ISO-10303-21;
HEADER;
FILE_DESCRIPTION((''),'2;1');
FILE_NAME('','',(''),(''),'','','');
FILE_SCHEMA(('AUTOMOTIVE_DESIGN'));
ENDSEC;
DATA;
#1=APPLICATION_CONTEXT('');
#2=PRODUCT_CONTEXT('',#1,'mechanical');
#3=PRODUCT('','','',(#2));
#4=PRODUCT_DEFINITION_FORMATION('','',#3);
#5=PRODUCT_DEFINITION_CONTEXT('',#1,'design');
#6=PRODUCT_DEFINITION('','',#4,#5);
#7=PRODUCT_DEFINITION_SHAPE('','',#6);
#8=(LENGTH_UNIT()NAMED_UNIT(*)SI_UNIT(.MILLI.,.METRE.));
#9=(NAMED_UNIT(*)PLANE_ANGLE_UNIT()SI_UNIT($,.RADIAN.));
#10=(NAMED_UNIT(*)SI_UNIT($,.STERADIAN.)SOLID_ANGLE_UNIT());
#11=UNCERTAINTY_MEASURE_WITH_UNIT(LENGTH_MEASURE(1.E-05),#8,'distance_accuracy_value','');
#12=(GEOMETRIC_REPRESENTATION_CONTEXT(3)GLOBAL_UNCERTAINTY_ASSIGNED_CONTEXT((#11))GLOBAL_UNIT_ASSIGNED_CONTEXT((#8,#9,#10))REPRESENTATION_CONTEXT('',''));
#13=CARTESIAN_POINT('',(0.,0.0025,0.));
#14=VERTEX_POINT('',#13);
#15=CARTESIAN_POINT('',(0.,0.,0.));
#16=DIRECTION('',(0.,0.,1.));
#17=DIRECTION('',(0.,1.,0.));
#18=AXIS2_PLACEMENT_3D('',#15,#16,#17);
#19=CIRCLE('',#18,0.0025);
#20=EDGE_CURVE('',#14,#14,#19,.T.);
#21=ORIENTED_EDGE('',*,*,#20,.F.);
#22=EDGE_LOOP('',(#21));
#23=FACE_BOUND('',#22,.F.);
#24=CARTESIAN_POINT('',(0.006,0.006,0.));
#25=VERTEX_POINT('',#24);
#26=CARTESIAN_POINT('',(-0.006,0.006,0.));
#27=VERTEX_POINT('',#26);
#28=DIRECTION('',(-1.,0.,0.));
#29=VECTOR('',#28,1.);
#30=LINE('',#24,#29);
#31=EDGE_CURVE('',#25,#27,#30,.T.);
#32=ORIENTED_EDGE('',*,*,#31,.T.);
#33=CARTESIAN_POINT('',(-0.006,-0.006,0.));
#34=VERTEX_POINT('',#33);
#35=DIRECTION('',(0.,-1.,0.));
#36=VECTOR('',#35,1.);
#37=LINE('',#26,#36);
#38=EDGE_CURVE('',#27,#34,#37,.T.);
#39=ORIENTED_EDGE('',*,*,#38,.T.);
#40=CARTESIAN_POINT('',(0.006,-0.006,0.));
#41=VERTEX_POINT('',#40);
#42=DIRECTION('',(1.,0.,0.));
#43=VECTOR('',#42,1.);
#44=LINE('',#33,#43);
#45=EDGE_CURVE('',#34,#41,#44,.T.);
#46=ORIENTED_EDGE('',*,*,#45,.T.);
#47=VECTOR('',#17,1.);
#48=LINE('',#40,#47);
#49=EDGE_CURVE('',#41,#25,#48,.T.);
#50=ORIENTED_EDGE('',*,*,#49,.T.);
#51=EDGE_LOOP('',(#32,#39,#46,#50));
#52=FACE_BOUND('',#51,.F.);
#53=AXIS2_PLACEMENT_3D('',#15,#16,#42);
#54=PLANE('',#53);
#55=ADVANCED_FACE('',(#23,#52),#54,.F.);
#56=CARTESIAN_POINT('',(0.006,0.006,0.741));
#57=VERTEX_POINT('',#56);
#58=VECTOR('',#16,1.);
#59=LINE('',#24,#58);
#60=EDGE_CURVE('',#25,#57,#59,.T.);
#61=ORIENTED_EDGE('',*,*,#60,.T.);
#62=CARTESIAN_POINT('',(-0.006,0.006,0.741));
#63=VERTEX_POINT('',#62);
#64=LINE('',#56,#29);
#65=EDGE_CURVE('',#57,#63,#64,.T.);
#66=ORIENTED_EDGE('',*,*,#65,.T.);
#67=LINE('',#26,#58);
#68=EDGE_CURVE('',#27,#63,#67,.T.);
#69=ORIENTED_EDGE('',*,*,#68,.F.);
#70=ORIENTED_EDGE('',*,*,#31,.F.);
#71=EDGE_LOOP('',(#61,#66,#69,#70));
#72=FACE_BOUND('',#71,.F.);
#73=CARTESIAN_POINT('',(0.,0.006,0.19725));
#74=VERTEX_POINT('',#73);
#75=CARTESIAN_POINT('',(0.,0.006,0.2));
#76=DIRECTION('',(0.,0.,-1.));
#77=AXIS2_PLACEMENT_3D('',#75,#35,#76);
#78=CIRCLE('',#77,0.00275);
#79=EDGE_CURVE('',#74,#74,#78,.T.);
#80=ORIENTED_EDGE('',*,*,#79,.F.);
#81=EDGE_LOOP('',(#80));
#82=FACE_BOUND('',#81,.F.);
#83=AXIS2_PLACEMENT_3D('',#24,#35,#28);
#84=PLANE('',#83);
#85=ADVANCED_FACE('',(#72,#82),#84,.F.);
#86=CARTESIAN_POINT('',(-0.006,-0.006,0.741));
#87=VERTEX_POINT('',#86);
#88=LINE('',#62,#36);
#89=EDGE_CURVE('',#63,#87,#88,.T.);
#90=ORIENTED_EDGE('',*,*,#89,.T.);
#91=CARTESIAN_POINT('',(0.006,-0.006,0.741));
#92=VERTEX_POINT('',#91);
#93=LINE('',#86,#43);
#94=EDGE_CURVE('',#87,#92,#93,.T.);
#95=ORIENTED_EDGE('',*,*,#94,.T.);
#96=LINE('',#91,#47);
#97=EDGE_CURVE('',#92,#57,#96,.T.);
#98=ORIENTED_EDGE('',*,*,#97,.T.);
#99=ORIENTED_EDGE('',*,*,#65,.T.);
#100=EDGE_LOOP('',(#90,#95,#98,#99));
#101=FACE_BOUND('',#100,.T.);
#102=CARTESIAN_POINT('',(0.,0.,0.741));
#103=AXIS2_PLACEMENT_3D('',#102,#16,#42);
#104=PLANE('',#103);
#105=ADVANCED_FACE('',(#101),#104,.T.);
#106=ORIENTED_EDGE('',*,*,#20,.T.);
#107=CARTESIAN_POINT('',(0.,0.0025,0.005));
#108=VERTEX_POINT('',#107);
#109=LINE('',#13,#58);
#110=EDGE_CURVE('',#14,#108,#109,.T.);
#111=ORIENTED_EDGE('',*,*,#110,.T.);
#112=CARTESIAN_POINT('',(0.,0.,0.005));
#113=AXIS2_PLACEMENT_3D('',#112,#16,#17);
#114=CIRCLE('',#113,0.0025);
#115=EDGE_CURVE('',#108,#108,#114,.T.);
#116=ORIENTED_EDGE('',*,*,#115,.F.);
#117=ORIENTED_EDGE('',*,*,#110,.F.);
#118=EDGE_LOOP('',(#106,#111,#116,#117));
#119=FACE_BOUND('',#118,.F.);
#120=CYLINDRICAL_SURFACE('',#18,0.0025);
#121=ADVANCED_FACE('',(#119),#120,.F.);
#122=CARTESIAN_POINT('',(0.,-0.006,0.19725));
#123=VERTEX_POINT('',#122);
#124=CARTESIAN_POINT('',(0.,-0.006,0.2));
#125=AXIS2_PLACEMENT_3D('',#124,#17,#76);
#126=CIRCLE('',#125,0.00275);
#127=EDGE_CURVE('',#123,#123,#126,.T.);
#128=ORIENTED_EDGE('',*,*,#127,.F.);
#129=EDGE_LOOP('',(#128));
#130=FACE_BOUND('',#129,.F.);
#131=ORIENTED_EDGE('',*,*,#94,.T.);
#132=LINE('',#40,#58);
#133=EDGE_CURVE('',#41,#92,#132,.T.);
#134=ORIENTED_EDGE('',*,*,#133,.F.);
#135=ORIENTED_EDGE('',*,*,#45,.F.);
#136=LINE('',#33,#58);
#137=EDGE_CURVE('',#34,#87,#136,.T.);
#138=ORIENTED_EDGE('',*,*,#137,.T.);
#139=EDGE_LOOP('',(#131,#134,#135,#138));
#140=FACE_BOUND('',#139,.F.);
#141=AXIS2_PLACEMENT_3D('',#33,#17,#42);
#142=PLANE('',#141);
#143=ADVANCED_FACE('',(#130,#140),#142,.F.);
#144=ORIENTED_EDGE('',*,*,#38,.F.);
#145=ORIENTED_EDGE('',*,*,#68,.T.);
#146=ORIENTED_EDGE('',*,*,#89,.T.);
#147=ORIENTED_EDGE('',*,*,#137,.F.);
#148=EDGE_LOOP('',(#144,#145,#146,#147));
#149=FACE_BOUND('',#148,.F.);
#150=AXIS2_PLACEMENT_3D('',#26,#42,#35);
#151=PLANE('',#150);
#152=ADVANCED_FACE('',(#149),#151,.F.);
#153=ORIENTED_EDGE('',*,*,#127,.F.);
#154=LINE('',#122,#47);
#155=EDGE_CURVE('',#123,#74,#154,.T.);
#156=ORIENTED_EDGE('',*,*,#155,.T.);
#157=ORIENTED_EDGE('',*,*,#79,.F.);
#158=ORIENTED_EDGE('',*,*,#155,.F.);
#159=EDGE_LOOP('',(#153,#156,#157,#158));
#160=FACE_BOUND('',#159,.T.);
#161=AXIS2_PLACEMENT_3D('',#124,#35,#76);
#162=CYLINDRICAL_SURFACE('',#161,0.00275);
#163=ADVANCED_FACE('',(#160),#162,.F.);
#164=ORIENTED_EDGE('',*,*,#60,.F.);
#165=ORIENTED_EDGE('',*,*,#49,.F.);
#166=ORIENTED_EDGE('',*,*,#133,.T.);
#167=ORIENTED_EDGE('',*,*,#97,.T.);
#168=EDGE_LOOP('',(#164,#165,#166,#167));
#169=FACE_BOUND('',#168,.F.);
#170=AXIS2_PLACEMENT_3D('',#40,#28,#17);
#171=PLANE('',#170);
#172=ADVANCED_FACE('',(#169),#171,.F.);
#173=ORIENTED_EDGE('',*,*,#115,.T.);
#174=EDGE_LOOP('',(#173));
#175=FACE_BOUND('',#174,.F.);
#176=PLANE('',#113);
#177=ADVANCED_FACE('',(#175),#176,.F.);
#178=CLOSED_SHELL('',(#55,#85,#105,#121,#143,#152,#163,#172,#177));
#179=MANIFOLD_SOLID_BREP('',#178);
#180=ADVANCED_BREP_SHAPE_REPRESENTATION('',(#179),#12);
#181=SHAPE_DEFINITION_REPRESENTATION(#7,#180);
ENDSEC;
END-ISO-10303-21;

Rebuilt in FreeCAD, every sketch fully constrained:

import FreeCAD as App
import Part
import Sketcher
Q = App.Units.Quantity


def add_polygon(sketch, points):
    """Adds a closed chain of lines whose ends are joined by coincident constraints."""
    first, n = sketch.GeometryCount, len(points)
    for a, b in zip(points, points[1:] + points[:1]):
        sketch.addGeometry(Part.LineSegment(App.Vector(*a, 0), App.Vector(*b, 0)), False)
    for i in range(n):
        sketch.addConstraint(Sketcher.Constraint("Coincident", first + i, 2, first + (i + 1) % n, 1))

doc = App.newDocument("Part")
body = doc.addObject("PartDesign::Body", "Body")

# Sketch on XY plane
sketch1 = body.newObject("Sketcher::SketchObject", "Sketch")
sketch1.AttachmentSupport = (doc.getObject("XY_Plane"), [""])
sketch1.MapMode = "FlatFace"
add_polygon(sketch1, [(-0.006, 0.006), (-0.006, -0.006), (0.006, -0.006), (0.006, 0.006)])  # lines 0-3
sketch1.addConstraint(Sketcher.Constraint("Vertical", 0))
sketch1.addConstraint(Sketcher.Constraint("Horizontal", 1))
sketch1.addConstraint(Sketcher.Constraint("Vertical", 2))
sketch1.addConstraint(Sketcher.Constraint("Horizontal", 3))
sketch1.addConstraint(Sketcher.Constraint("Symmetric", 0, 2, 2, 2, -1, 1))
sketch1.addConstraint(Sketcher.Constraint("Equal", 3, 0))
sketch1.addConstraint(Sketcher.Constraint("DistanceX", 0, 2, -1, 1, Q("0.006 mm")))
pad1 = body.newObject("PartDesign::Pad", "Pad")
pad1.Profile = sketch1
pad1.Length = 0.741

# Sketch on XZ plane
sketch2 = body.newObject("Sketcher::SketchObject", "Sketch001")
sketch2.AttachmentSupport = (doc.getObject("XZ_Plane"), [""])
sketch2.MapMode = "FlatFace"
sketch2.AttachmentOffset = App.Placement(App.Vector(0, 0, 0.006), App.Rotation())
sketch2.addGeometry(Part.Circle(App.Vector(0, 0.2, 0), App.Vector(0, 0, 1), 0.0027), False)
sketch2.addConstraint(Sketcher.Constraint("PointOnObject", 0, 3, -2))
sketch2.addConstraint(Sketcher.Constraint("Diameter", 0, Q("0.0055 mm")))
sketch2.addConstraint(Sketcher.Constraint("DistanceY", -1, 1, 0, 3, Q("0.2 mm")))
doc.recompute()
hole = body.newObject("PartDesign::Hole", "Hole")
hole.Profile = sketch2
hole.ThreadType = "None"
hole.Diameter = 0.0055
hole.DepthType = "ThroughAll"

# Sketch on XY plane
sketch3 = body.newObject("Sketcher::SketchObject", "Sketch002")
sketch3.AttachmentSupport = (doc.getObject("XY_Plane"), [""])
sketch3.MapMode = "FlatFace"
sketch3.addGeometry(Part.Circle(App.Vector(0, 0, 0), App.Vector(0, 0, 1), 0.0025), False)
sketch3.addConstraint(Sketcher.Constraint("Coincident", 0, 3, -1, 1))
sketch3.addConstraint(Sketcher.Constraint("Diameter", 0, Q("0.005 mm")))
doc.recompute()
hole2 = body.newObject("PartDesign::Hole", "Hole001")
hole2.Profile = sketch3
hole2.ThreadType = "None"
hole2.Diameter = 0.005
hole2.DepthType = "Dimension"
hole2.Depth = 0.005
hole2.DrillPoint = "Flat"
hole2.Reversed = True

doc.recompute()
